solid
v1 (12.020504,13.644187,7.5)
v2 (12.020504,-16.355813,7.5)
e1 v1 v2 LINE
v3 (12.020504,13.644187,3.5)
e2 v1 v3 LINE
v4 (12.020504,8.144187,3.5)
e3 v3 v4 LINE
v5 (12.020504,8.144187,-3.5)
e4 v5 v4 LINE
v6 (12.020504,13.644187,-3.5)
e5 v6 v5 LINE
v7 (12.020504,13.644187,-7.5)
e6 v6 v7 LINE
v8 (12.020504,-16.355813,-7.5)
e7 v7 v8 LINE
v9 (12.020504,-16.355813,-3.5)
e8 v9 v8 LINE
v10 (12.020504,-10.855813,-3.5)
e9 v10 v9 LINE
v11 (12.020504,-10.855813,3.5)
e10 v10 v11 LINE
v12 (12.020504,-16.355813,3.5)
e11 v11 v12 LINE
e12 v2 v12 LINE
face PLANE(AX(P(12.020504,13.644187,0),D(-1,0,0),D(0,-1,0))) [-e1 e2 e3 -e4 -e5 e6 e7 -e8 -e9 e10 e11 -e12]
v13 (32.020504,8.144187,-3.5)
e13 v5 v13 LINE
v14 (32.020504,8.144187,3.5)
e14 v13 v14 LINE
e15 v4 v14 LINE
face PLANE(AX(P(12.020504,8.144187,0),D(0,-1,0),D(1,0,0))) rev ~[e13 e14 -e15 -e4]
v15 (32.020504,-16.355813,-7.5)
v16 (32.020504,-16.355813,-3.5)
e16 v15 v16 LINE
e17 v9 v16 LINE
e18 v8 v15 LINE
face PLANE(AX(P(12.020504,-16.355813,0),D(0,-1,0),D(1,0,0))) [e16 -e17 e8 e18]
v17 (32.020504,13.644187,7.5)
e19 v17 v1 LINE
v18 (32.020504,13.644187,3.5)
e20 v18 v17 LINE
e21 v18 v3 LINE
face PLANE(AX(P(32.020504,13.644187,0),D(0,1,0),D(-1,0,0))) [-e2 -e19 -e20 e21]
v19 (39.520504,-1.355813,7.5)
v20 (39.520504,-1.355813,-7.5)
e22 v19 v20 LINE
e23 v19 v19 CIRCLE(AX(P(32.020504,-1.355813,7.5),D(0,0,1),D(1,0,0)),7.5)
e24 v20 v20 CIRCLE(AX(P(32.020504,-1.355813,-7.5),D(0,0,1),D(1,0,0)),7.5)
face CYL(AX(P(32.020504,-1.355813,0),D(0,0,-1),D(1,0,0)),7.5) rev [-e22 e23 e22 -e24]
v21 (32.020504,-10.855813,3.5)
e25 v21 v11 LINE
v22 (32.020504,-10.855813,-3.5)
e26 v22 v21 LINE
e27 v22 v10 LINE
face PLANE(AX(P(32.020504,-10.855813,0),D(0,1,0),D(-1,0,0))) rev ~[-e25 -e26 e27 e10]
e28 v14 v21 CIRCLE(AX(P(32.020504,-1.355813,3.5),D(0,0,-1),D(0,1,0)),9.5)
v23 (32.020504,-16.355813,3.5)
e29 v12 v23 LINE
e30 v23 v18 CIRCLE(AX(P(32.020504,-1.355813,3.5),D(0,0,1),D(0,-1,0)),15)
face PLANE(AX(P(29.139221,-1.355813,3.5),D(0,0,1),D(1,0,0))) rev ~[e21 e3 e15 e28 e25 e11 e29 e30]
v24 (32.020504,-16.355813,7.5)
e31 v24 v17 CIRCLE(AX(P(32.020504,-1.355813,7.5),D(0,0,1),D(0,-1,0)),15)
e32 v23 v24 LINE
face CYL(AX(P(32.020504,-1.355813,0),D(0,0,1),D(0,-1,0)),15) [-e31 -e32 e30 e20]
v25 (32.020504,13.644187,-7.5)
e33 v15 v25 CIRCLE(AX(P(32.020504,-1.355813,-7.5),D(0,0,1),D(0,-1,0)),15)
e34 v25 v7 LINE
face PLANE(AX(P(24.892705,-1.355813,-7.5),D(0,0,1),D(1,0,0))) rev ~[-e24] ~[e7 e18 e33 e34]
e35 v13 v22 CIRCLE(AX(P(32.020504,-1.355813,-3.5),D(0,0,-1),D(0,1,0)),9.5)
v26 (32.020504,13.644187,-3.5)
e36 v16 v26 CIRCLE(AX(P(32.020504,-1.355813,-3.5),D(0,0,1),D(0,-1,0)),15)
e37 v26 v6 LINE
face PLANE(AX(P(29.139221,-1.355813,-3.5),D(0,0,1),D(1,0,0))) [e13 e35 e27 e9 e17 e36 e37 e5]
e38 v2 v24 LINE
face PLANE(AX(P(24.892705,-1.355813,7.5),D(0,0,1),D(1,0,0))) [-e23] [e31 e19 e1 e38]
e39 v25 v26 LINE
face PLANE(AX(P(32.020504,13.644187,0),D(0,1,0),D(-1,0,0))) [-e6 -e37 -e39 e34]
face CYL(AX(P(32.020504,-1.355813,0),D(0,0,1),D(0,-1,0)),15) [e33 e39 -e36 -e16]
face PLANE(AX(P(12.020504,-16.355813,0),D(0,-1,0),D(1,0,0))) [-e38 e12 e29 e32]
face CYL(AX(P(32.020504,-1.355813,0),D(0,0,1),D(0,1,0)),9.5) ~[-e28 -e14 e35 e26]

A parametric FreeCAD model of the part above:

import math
import FreeCAD as App
import Part
import Sketcher
Q = App.Units.Quantity

doc = App.newDocument("Part")
body = doc.addObject("PartDesign::Body", "Body")

# Sketch on XY plane
sketch1 = body.newObject("Sketcher::SketchObject", "Sketch")
sketch1.AttachmentSupport = (doc.getObject("XY_Plane"), [""])
sketch1.MapMode = "FlatFace"
sketch1.addGeometry([
    Part.LineSegment(App.Vector(12, -16, 0), App.Vector(32, -16, 0)),  # 0
    Part.ArcOfCircle(Part.Circle(App.Vector(32, -1, 0), App.Vector(0, 0, 1), 15), math.radians(-90), math.radians(90)),  # 1
    Part.LineSegment(App.Vector(32, 14, 0), App.Vector(12, 14, 0)),  # 2
    Part.LineSegment(App.Vector(12, 14, 0), App.Vector(12, -16, 0)),  # 3
    Part.Circle(App.Vector(32, -1, 0), App.Vector(0, 0, 1), 8),  # 4
], False)
sketch1.addConstraint([
    Sketcher.Constraint("Tangent", 0, 2, 1, 1),
    Sketcher.Constraint("Tangent", 1, 2, 2, 1),
    Sketcher.Constraint("Coincident", 2, 2, 3, 1),
    Sketcher.Constraint("Coincident", 3, 2, 0, 1),
    Sketcher.Constraint("Horizontal", 0),
    Sketcher.Constraint("Horizontal", 2),
    Sketcher.Constraint("Vertical", 3),
    Sketcher.Constraint("Coincident", 4, 3, 1, 3),
    Sketcher.Constraint("Diameter", 4, Q("15 mm")),
    Sketcher.Constraint("Radius", 1, Q("15 mm")),
    Sketcher.Constraint("DistanceX", 0, 1, 0, 2, Q("20 mm")),
    Sketcher.Constraint("DistanceX", -1, 1, 1, 3, Q("32.020504 mm")),
    Sketcher.Constraint("DistanceY", 1, 3, -1, 1, Q("1.355813 mm")),
])
pad1 = body.newObject("PartDesign::Pad", "Pad")
pad1.Profile = sketch1
pad1.Length = 15
pad1.Midplane = True

# Sketch on XY plane
sketch2 = body.newObject("Sketcher::SketchObject", "Sketch001")
sketch2.AttachmentSupport = (doc.getObject("XY_Plane"), [""])
sketch2.MapMode = "FlatFace"
sketch2.addGeometry([
    Part.LineSegment(App.Vector(32, 14, 0), App.Vector(12, 14, 0)),  # 0
    Part.LineSegment(App.Vector(12, 14, 0), App.Vector(12, 8, 0)),  # 1
    Part.LineSegment(App.Vector(12, 8, 0), App.Vector(32, 8, 0)),  # 2
    Part.ArcOfCircle(Part.Circle(App.Vector(32, -1, 0), App.Vector(0, 0, 1), 10), math.radians(-90), math.radians(90)),  # 3
    Part.LineSegment(App.Vector(32, -11, 0), App.Vector(12, -11, 0)),  # 4
    Part.LineSegment(App.Vector(12, -11, 0), App.Vector(12, -16, 0)),  # 5
    Part.LineSegment(App.Vector(12, -16, 0), App.Vector(32, -16, 0)),  # 6
    Part.ArcOfCircle(Part.Circle(App.Vector(32, -1, 0), App.Vector(0, 0, 1), 15), math.radians(-90), math.radians(90)),  # 7
], False)
sketch2.addConstraint([
    Sketcher.Constraint("Coincident", 0, 2, 1, 1),
    Sketcher.Constraint("Coincident", 1, 2, 2, 1),
    Sketcher.Constraint("Tangent", 2, 2, 3, 2),
    Sketcher.Constraint("Tangent", 3, 1, 4, 1),
    Sketcher.Constraint("Coincident", 4, 2, 5, 1),
    Sketcher.Constraint("Coincident", 5, 2, 6, 1),
    Sketcher.Constraint("Tangent", 6, 2, 7, 1),
    Sketcher.Constraint("Tangent", 7, 2, 0, 1),
    Sketcher.Constraint("Horizontal", 0),
    Sketcher.Constraint("Vertical", 1),
    Sketcher.Constraint("Horizontal", 2),
    Sketcher.Constraint("Horizontal", 4),
    Sketcher.Constraint("Vertical", 5),
    Sketcher.Constraint("Horizontal", 6),
    Sketcher.Constraint("Coincident", 7, 3, 3, 3),
    Sketcher.Constraint("Vertical", 1, 2, 4, 2),
    Sketcher.Constraint("Radius", 7, Q("15 mm")),
    Sketcher.Constraint("Radius", 3, Q("9.5 mm")),
    Sketcher.Constraint("DistanceX", 0, 2, 0, 1, Q("20 mm")),
    Sketcher.Constraint("DistanceX", -1, 1, 3, 3, Q("32.020504 mm")),
    Sketcher.Constraint("DistanceY", 3, 3, -1, 1, Q("1.355813 mm")),
])
pocket1 = body.newObject("PartDesign::Pocket", "Pocket")
pocket1.Profile = sketch2
pocket1.Length = 7
pocket1.Midplane = True

doc.recompute()
